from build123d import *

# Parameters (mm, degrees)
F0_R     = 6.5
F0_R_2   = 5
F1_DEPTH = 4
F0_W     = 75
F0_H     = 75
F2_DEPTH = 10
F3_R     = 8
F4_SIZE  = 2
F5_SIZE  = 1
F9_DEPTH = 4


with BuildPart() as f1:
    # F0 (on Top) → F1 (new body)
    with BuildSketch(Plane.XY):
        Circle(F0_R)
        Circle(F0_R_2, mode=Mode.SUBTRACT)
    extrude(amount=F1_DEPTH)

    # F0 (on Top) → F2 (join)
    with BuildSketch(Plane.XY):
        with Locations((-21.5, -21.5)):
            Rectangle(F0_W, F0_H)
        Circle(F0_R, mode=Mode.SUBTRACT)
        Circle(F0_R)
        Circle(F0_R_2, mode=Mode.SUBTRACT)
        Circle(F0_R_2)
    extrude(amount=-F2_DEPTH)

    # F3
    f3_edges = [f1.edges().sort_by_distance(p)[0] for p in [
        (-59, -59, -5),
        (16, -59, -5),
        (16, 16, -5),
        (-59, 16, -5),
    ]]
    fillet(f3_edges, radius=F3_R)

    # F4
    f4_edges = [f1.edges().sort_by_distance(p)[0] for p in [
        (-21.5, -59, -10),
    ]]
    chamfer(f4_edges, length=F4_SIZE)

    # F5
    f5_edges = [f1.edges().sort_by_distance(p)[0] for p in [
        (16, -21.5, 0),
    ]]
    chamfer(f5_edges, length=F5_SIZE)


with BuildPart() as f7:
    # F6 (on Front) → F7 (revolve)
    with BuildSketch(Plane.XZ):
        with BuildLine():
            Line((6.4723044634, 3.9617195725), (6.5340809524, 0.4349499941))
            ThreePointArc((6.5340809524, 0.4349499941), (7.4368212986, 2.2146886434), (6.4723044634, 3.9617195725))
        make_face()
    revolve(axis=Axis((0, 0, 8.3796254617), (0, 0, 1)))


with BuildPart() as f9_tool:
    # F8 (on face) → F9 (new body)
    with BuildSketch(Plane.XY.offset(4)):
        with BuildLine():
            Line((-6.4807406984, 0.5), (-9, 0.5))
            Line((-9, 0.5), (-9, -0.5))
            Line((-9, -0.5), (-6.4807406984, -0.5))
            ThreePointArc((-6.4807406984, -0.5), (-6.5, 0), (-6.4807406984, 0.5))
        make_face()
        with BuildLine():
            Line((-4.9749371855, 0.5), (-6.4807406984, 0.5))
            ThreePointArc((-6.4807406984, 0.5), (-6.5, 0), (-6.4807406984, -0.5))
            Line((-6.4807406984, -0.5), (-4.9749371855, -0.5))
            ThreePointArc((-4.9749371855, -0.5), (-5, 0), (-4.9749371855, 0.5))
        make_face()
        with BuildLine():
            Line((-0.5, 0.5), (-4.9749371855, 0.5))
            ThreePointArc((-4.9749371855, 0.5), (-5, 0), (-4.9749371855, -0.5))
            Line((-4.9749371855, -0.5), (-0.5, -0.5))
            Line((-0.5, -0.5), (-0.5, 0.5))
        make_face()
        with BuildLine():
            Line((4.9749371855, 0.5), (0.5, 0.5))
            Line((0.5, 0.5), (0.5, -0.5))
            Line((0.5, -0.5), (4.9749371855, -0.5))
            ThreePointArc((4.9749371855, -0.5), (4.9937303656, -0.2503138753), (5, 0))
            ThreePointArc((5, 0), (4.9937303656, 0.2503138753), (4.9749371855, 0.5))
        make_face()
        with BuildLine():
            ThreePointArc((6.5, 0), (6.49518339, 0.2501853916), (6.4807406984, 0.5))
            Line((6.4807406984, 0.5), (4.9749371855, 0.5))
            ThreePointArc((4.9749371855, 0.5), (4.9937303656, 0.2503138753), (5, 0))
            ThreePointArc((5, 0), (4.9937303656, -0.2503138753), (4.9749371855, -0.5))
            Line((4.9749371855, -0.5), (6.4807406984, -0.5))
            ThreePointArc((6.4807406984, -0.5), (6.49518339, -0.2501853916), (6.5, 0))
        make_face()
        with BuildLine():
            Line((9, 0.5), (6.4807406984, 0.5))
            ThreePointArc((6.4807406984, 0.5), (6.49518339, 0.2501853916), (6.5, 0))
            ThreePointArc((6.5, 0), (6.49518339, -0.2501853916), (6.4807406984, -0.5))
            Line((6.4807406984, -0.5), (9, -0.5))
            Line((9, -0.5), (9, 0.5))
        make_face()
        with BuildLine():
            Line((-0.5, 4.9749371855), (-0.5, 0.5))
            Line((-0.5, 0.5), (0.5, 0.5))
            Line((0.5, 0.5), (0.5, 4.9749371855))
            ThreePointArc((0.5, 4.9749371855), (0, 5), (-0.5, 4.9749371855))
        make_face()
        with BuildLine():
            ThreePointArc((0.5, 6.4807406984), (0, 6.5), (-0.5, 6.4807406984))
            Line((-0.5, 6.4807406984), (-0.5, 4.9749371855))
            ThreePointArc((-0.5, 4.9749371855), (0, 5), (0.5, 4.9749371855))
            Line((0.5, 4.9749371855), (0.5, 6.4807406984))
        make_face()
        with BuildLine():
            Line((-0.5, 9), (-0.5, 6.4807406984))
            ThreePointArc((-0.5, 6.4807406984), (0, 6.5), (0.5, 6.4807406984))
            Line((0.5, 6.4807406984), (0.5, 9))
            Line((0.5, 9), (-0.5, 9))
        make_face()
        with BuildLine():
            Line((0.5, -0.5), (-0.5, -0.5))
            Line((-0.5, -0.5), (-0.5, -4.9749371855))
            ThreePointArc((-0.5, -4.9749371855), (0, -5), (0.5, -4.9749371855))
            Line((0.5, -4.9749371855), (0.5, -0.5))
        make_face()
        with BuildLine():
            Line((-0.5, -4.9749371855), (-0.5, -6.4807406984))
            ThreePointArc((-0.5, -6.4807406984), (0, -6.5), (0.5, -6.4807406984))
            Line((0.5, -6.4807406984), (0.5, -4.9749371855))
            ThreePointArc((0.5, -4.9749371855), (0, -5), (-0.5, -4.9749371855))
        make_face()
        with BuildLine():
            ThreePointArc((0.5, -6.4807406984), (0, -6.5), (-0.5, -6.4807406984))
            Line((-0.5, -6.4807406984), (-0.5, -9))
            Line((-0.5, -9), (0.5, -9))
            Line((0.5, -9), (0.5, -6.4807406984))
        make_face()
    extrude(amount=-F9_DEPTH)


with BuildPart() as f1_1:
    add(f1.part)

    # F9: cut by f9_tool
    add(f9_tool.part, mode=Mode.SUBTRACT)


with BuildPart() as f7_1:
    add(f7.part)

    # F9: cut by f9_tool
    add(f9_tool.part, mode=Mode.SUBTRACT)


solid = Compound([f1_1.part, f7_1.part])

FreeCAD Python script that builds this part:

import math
import FreeCAD as App
import Part
import Sketcher
from FreeCAD import Vector
Q = App.Units.Quantity


def edges_at(feature, points):
    """Names of the edges that pass closest to the given points."""
    edges = feature.Shape.Edges
    near = lambda p: min(range(len(edges)), key=lambda i: edges[i].distToShape(Part.Vertex(*p))[0])
    return sorted({f"Edge{near(p) + 1}" for p in points})


def add_polygon(sketch, points):
    """Adds a closed chain of lines whose ends are joined by coincident constraints."""
    first, n = sketch.GeometryCount, len(points)
    for a, b in zip(points, points[1:] + points[:1]):
        sketch.addGeometry(Part.LineSegment(App.Vector(*a, 0), App.Vector(*b, 0)), False)
    for i in range(n):
        sketch.addConstraint(Sketcher.Constraint("Coincident", first + i, 2, first + (i + 1) % n, 1))

doc = App.newDocument("Part")
body = doc.addObject("PartDesign::Body", "Body")

sketch1 = body.newObject("Sketcher::SketchObject", "Sketch")
sketch1.AttachmentSupport = (doc.getObject("XY_Plane"), [""])
sketch1.MapMode = "FlatFace"
sketch1.addGeometry([
    Part.Circle(Vector(0, 0, 0), Vector(0, 0, 1), 6.5),
    Part.Circle(Vector(0, 0, 0), Vector(0, 0, 1), 5),
], False)
sketch1.addConstraint([
    Sketcher.Constraint("Coincident", 0, 3, -1, 1),
    Sketcher.Constraint("Coincident", 1, 3, -1, 1),
    Sketcher.Constraint("Diameter", 0, Q("13 mm")),
    Sketcher.Constraint("Diameter", 1, Q("10 mm")),
])
pad1 = body.newObject("PartDesign::Pad", "Pad")
pad1.Profile = sketch1
pad1.Length = 4

sketch2 = body.newObject("Sketcher::SketchObject", "Sketch001")
sketch2.AttachmentSupport = (doc.getObject("XY_Plane"), [""])
sketch2.MapMode = "FlatFace"
add_polygon(sketch2, [(-59, 16), (-59, -59), (16, -59), (16, 16)])
sketch2.addConstraint([
    Sketcher.Constraint("Vertical", 0),
    Sketcher.Constraint("Horizontal", 1),
    Sketcher.Constraint("Vertical", 2),
    Sketcher.Constraint("Horizontal", 3),
    Sketcher.Constraint("Equal", 3, 0),
    Sketcher.Constraint("DistanceX", 1, 1, 1, 2, Q("75 mm")),
    Sketcher.Constraint("DistanceX", 0, 2, -1, 1, Q("59 mm")),
    Sketcher.Constraint("DistanceY", 0, 2, -1, 1, Q("59 mm")),
])
pad2 = body.newObject("PartDesign::Pad", "Pad001")
pad2.Profile = sketch2
pad2.Length = 10
pad2.Reversed = True
doc.recompute()

fillet = body.newObject("PartDesign::Fillet", "Fillet")
fillet.Base = (pad2, edges_at(pad2, [
    (-59, -59, -5),
    (16, -59, -5),
    (16, 16, -5),
    (-59, 16, -5),
]))
fillet.Radius = 8
doc.recompute()

chamfer = body.newObject("PartDesign::Chamfer", "Chamfer")
chamfer.Base = (fillet, edges_at(fillet, [(-21.5, -59, -10)]))
chamfer.Size = 2
doc.recompute()

chamfer2 = body.newObject("PartDesign::Chamfer", "Chamfer001")
chamfer2.Base = (chamfer, edges_at(chamfer, [(16, -21.5, 0)]))
chamfer2.Size = 1
body2 = doc.addObject("PartDesign::Body", "Body001")

sketch3 = body2.newObject("Sketcher::SketchObject", "Sketch002")
sketch3.AttachmentSupport = (doc.getObject("XZ_Plane001"), [""])
sketch3.MapMode = "FlatFace"
sketch3.addGeometry([
    Part.LineSegment(Vector(6.472304, 3.96172, 0), Vector(6.534081, 0.43495, 0)),
    Part.ArcOfCircle(Part.Circle(Vector(5.304716, 2.177342, 0), Vector(0, 0, 1), 2.132432), math.radians(-54.794677), math.radians(56.80171)),
], False)
sketch3.addConstraint([
    Sketcher.Constraint("Coincident", 0, 1, 1, 2),
    Sketcher.Constraint("Coincident", 1, 1, 0, 2),
    Sketcher.Constraint("Radius", 1, Q("2.132432 mm")),
    Sketcher.Constraint("Distance", 0, Q("3.527311 mm")),
    Sketcher.Constraint("DistanceY", -1, 1, 1, 3, Q("2.177342 mm")),
    Sketcher.Constraint("DistanceY", -1, 1, 0, 1, Q("3.96172 mm")),
    Sketcher.Constraint("DistanceX", -1, 1, 1, 1, Q("6.534081 mm")),
])
revolution = body2.newObject("PartDesign::Revolution", "Revolution")
revolution.Profile = sketch3
revolution.ReferenceAxis = (sketch3, ["V_Axis"])
revolution.Angle = 360
body3 = doc.addObject("PartDesign::Body", "Body002")
body3.AllowCompound = True

sketch4 = body3.newObject("Sketcher::SketchObject", "Sketch003")
sketch4.AttachmentSupport = (doc.getObject("XY_Plane002"), [""])
sketch4.MapMode = "FlatFace"
sketch4.AttachmentOffset = App.Placement(Vector(0, 0, 4), App.Rotation())
add_polygon(sketch4, [(-9, 0.5), (-9, -0.5), (-0.5, -0.5), (-0.5, 0.5)])
add_polygon(sketch4, [(0.5, 0.5), (0.5, -0.5), (9, -0.5), (9, 0.5)])
add_polygon(sketch4, [(-0.5, 0.5), (0.5, 0.5), (0.5, 9), (-0.5, 9)])
add_polygon(sketch4, [(0.5, -0.5), (-0.5, -0.5), (-0.5, -9), (0.5, -9)])
sketch4.addConstraint([
    Sketcher.Constraint("Vertical", 0),
    Sketcher.Constraint("Horizontal", 1),
    Sketcher.Constraint("Vertical", 2),
    Sketcher.Constraint("Horizontal", 3),
    Sketcher.Constraint("Vertical", 4),
    Sketcher.Constraint("Horizontal", 5),
    Sketcher.Constraint("Vertical", 6),
    Sketcher.Constraint("Horizontal", 7),
    Sketcher.Constraint("Horizontal", 8),
    Sketcher.Constraint("Vertical", 9),
    Sketcher.Constraint("Horizontal", 10),
    Sketcher.Constraint("Vertical", 11),
    Sketcher.Constraint("Horizontal", 12),
    Sketcher.Constraint("Vertical", 13),
    Sketcher.Constraint("Horizontal", 14),
    Sketcher.Constraint("Vertical", 15),
    Sketcher.Constraint("Coincident", 8, 2, 7, 2),
    Sketcher.Constraint("Coincident", 11, 2, 2, 2),
    Sketcher.Constraint("Coincident", 12, 2, 1, 2),
    Sketcher.Constraint("Coincident", 15, 2, 4, 2),
    Sketcher.Constraint("Symmetric", 2, 2, 4, 2, -1, 1),
    Sketcher.Constraint("Equal", 3, 5),
    Sketcher.Constraint("Equal", 14, 0),
    Sketcher.Constraint("Equal", 7, 9),
    Sketcher.Constraint("Equal", 11, 13),
    Sketcher.Constraint("DistanceX", 8, 1, 8, 2, Q("1 mm")),
    Sketcher.Constraint("DistanceX", 1, 1, 1, 2, Q("8.5 mm")),
])
pad3 = body3.newObject("PartDesign::Pad", "Pad002")
pad3.Profile = sketch4
pad3.Length = 4
pad3.Reversed = True
doc.recompute()

body4 = doc.addObject("PartDesign::Body", "Body003")
body4.BaseFeature = body3
boolean = body.newObject("PartDesign::Boolean", "Boolean")
boolean.Type = "Cut"
boolean.addObjects([body4])
doc.recompute()
body2.AllowCompound = True
doc.recompute()

boolean2 = body2.newObject("PartDesign::Boolean", "Boolean001")
boolean2.Type = "Cut"
boolean2.addObjects([body3])

doc.recompute()
